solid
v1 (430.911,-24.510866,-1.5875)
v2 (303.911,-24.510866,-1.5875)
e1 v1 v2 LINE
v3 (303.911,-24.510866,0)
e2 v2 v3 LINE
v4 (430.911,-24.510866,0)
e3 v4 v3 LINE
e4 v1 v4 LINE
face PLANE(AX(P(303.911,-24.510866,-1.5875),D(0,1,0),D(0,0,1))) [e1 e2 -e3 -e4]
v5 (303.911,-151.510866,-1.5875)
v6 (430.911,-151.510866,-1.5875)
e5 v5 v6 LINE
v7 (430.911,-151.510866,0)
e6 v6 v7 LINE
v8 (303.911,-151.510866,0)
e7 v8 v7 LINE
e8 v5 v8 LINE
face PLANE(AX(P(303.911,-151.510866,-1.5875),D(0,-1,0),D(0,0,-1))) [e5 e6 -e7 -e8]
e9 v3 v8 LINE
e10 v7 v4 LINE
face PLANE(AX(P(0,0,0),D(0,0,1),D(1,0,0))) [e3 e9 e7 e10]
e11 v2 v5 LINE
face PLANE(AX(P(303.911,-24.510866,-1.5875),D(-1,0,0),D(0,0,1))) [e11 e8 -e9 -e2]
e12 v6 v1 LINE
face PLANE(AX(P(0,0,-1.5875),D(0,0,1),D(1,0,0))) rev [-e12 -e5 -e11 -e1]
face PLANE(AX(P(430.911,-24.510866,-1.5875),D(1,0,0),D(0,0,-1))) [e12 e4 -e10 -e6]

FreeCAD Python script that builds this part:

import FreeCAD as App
import Part
import Sketcher

V = App.Vector
Q = App.Units.Quantity


def add_polygon(sketch, points):
    """Adds a closed chain of lines whose ends are joined by coincident constraints."""
    first, n = sketch.GeometryCount, len(points)
    for a, b in zip(points, points[1:] + points[:1]):
        sketch.addGeometry(Part.LineSegment(App.Vector(*a, 0), App.Vector(*b, 0)), False)
    for i in range(n):
        sketch.addConstraint(Sketcher.Constraint("Coincident", first + i, 2, first + (i + 1) % n, 1))

doc = App.newDocument("Part")
params = doc.addObject("Spreadsheet::Sheet", "Params")
for row, (alias, value) in enumerate([
    ("sketch1_width", "5 in"),
    ("pad1_length", "0.0625 in"),
], start=1):
    params.set(f"A{row}", alias)
    params.set(f"B{row}", "=" + value)
    params.setAlias(f"B{row}", alias)

body = doc.addObject("PartDesign::Body", "Body")

sketch1 = body.newObject("Sketcher::SketchObject", "Sketch")
sketch1.AttachmentSupport = (doc.getObject("XY_Plane"), [""])
sketch1.MapMode = "FlatFace"
add_polygon(sketch1, [(304, -25), (304, -152), (431, -152), (431, -25)])
sketch1.addConstraint([
    Sketcher.Constraint("Vertical", 0),
    Sketcher.Constraint("Horizontal", 1),
    Sketcher.Constraint("Vertical", 2),
    Sketcher.Constraint("Horizontal", 3),
    Sketcher.Constraint("Equal", 3, 0),
    Sketcher.Constraint("DistanceX", 1, 1, 1, 2, Q("5 in")),
    Sketcher.Constraint("DistanceX", -1, 1, 0, 2, Q("11.965 in")),
    Sketcher.Constraint("DistanceY", 0, 2, -1, 1, 151.510866),
])
sketch1.setExpression("Constraints[9]", "Params.sketch1_width")
pad1 = body.newObject("PartDesign::Pad", "Pad")
pad1.Profile = sketch1
pad1.setExpression("Length", "Params.pad1_length")
pad1.Reversed = True

doc.recompute()
